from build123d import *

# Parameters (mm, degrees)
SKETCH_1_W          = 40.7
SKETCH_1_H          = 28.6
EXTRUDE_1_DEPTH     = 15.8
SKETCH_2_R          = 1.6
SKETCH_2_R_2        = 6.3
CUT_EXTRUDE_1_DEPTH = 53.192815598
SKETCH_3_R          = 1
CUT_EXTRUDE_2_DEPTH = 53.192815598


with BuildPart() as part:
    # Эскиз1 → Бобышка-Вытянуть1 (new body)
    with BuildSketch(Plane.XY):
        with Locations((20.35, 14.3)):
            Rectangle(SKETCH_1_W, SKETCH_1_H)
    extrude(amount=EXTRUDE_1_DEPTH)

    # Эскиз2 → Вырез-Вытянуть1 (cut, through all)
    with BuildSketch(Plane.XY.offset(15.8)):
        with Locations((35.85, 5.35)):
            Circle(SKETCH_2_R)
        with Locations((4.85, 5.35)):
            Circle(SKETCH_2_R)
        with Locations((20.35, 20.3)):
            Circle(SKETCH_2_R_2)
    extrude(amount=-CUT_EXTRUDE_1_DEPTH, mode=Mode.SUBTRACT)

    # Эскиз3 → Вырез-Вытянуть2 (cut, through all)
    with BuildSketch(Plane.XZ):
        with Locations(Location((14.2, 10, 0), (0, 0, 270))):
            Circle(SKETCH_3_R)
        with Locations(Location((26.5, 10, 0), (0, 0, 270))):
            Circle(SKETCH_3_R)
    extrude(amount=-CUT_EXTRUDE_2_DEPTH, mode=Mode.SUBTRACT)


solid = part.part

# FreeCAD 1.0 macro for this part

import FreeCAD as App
import Part
import Sketcher
Q = App.Units.Quantity

doc = App.newDocument("Part")
body = doc.addObject("PartDesign::Body", "Body")

# Sketch on XY plane
sketch1 = body.newObject("Sketcher::SketchObject", "Sketch")
sketch1.AttachmentSupport = (doc.getObject("XY_Plane"), [""])
sketch1.MapMode = "FlatFace"
sketch1.addGeometry([
    Part.LineSegment(App.Vector(0, 29, 0), App.Vector(0, 0, 0)),
    Part.LineSegment(App.Vector(0, 0, 0), App.Vector(41, 0, 0)),
    Part.LineSegment(App.Vector(41, 0, 0), App.Vector(41, 29, 0)),
    Part.LineSegment(App.Vector(41, 29, 0), App.Vector(0, 29, 0)),
], False)
sketch1.addConstraint([
    Sketcher.Constraint("Coincident", 0, 2, 1, 1),
    Sketcher.Constraint("Coincident", 1, 2, 2, 1),
    Sketcher.Constraint("Coincident", 2, 2, 3, 1),
    Sketcher.Constraint("Coincident", 3, 2, 0, 1),
    Sketcher.Constraint("Vertical", 0),
    Sketcher.Constraint("Horizontal", 1),
    Sketcher.Constraint("Vertical", 2),
    Sketcher.Constraint("Horizontal", 3),
    Sketcher.Constraint("Coincident", 0, 2, -1, 1),
    Sketcher.Constraint("DistanceX", 1, 1, 1, 2, Q("40.7 mm")),
    Sketcher.Constraint("DistanceY", 0, 2, 0, 1, Q("28.6 mm")),
])
pad1 = body.newObject("PartDesign::Pad", "Pad")
pad1.Profile = sketch1
pad1.Length = 15.8

# Sketch on XY plane
sketch2 = body.newObject("Sketcher::SketchObject", "Sketch001")
sketch2.AttachmentSupport = (doc.getObject("XY_Plane"), [""])
sketch2.MapMode = "FlatFace"
sketch2.AttachmentOffset = App.Placement(App.Vector(0, 0, 15.8), App.Rotation())
sketch2.addGeometry([
    Part.Circle(App.Vector(35.9, 5.3, 0), App.Vector(0, 0, 1), 1.6),
    Part.Circle(App.Vector(4.8, 5.3, 0), App.Vector(0, 0, 1), 1.6),
    Part.Circle(App.Vector(20.4, 20.3, 0), App.Vector(0, 0, 1), 6.3),
], False)
sketch2.addConstraint([
    Sketcher.Constraint("Equal", 0, 1),
    Sketcher.Constraint("Horizontal", 0, 3, 1, 3),
    Sketcher.Constraint("Diameter", 0, Q("3.2 mm")),
    Sketcher.Constraint("Diameter", 2, Q("12.6 mm")),
    Sketcher.Constraint("DistanceX", 1, 3, 0, 3, Q("31 mm")),
    Sketcher.Constraint("DistanceY", -1, 1, 2, 3, Q("20.3 mm")),
    Sketcher.Constraint("DistanceX", 2, 3, 0, 3, Q("15.5 mm")),
    Sketcher.Constraint("DistanceX", -1, 1, 0, 3, Q("35.85 mm")),
    Sketcher.Constraint("DistanceY", -1, 1, 0, 3, Q("5.35 mm")),
])
pocket1 = body.newObject("PartDesign::Pocket", "Pocket")
pocket1.Profile = sketch2
pocket1.Type = "ThroughAll"

# Sketch on XZ plane
sketch3 = body.newObject("Sketcher::SketchObject", "Sketch002")
sketch3.AttachmentSupport = (doc.getObject("XZ_Plane"), [""])
sketch3.MapMode = "FlatFace"
sketch3.addGeometry([
    Part.Circle(App.Vector(14.2, 10, 0), App.Vector(0, 0, 1), 1),
    Part.Circle(App.Vector(26.5, 10, 0), App.Vector(0, 0, 1), 1),
], False)
sketch3.addConstraint([
    Sketcher.Constraint("Equal", 0, 1),
    Sketcher.Constraint("Horizontal", 0, 3, 1, 3),
    Sketcher.Constraint("Diameter", 0, Q("2 mm")),
    Sketcher.Constraint("DistanceY", -1, 1, 0, 3, Q("10 mm")),
    Sketcher.Constraint("DistanceX", -1, 1, 0, 3, Q("14.2 mm")),
    Sketcher.Constraint("DistanceX", -1, 1, 1, 3, Q("26.5 mm")),
])
pocket2 = body.newObject("PartDesign::Pocket", "Pocket001")
pocket2.Profile = sketch3
pocket2.Type = "ThroughAll"

doc.recompute()
